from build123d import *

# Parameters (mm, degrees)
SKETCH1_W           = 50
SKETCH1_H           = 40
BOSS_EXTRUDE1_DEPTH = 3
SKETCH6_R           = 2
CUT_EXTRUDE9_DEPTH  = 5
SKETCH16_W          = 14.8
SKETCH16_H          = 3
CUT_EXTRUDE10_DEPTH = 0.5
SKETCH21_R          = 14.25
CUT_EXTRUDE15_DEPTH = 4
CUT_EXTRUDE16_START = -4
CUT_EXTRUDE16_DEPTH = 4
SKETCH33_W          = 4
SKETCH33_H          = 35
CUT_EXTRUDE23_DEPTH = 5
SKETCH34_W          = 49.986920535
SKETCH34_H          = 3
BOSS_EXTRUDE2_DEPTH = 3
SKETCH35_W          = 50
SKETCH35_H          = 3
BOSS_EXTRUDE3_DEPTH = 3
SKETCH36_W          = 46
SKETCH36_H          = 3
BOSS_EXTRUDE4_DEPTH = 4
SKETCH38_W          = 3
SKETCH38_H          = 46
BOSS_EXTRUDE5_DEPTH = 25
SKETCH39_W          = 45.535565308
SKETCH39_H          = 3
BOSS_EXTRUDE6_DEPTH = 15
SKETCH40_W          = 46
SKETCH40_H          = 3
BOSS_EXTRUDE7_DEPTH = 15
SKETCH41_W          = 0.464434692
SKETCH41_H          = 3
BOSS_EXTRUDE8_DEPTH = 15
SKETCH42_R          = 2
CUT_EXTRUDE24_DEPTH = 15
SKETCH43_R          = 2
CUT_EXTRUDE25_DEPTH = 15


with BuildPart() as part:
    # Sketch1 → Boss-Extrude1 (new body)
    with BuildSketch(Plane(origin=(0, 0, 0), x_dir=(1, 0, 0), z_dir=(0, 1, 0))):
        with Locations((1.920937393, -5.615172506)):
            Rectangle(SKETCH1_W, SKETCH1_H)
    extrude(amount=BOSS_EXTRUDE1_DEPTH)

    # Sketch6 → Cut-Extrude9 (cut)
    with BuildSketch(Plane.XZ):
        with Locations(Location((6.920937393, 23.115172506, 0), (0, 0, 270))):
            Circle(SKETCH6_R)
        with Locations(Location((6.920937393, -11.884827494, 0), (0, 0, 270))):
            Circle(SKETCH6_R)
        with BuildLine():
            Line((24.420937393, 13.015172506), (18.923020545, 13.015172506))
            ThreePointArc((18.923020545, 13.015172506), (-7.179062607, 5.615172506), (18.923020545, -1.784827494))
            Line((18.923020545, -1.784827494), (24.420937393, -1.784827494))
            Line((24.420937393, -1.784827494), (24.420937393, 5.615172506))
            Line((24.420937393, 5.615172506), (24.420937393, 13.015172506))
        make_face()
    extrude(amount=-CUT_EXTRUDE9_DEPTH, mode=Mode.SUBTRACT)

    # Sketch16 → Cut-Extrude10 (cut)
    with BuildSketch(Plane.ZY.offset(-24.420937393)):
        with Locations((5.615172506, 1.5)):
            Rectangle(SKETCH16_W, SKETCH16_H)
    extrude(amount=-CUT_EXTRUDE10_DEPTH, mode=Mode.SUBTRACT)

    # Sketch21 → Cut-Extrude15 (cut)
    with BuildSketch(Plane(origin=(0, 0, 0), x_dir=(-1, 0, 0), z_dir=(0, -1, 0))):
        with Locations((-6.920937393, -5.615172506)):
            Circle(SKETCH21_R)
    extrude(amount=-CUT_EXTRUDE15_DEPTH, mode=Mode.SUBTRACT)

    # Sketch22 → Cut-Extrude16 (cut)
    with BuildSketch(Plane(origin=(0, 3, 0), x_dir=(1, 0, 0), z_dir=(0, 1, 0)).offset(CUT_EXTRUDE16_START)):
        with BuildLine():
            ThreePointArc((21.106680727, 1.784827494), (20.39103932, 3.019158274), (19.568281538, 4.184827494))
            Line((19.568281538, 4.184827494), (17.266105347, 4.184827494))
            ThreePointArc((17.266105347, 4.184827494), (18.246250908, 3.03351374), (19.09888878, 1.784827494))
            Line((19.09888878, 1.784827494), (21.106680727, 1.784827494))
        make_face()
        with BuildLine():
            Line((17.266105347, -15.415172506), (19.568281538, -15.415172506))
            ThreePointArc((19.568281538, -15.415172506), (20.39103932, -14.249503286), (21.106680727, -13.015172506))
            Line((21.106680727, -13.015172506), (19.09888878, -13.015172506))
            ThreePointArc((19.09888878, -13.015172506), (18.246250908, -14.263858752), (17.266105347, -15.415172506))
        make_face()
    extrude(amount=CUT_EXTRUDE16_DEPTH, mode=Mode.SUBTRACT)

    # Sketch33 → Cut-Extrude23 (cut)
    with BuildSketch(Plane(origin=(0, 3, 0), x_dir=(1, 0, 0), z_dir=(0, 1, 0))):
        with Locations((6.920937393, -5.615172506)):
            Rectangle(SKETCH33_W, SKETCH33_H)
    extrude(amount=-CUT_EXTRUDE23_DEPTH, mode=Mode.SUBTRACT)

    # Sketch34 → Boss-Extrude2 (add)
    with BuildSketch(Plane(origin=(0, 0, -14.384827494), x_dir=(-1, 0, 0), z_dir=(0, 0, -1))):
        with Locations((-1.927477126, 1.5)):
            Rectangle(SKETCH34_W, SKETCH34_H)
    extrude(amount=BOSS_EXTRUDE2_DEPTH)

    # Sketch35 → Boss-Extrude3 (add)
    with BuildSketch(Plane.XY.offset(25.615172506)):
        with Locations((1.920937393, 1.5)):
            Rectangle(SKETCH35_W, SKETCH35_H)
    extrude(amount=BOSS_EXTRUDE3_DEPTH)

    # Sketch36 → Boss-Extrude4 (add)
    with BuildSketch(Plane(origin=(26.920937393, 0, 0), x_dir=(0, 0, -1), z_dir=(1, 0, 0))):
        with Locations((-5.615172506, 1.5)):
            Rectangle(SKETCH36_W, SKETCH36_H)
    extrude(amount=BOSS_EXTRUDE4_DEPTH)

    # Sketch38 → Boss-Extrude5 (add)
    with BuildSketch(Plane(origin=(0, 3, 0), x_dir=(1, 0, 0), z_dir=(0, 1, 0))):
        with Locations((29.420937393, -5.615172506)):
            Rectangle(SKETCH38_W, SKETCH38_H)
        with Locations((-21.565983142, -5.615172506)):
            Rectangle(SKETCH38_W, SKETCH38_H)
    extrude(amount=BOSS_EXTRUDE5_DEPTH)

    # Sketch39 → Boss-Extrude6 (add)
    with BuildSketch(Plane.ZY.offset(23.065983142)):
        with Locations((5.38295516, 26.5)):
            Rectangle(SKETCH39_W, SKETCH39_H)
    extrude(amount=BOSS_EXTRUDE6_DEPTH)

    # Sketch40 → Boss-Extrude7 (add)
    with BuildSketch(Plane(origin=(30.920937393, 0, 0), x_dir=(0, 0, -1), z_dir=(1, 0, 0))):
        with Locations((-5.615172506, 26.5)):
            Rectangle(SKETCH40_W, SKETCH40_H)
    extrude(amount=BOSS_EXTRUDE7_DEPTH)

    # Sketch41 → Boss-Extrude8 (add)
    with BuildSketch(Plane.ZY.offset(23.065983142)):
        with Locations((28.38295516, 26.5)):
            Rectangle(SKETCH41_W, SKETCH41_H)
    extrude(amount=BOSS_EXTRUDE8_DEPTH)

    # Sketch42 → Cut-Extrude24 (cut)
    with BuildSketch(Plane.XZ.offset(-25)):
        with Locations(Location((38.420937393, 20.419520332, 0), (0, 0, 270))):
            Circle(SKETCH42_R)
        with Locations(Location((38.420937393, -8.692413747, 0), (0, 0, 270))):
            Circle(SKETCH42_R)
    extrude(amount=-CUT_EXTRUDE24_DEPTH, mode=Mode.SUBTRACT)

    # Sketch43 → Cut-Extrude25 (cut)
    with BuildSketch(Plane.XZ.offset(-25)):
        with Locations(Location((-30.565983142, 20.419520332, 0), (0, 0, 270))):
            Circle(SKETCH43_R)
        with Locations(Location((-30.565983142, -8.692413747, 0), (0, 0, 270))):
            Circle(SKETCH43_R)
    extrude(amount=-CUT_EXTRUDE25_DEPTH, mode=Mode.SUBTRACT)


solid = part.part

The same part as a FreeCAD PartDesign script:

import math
import FreeCAD as App
import Part
import Sketcher


def add_polygon(sketch, points):
    """Adds a closed chain of lines whose ends are joined by coincident constraints."""
    first, n = sketch.GeometryCount, len(points)
    for a, b in zip(points, points[1:] + points[:1]):
        sketch.addGeometry(Part.LineSegment(App.Vector(*a, 0), App.Vector(*b, 0)), False)
    for i in range(n):
        sketch.addConstraint(Sketcher.Constraint("Coincident", first + i, 2, first + (i + 1) % n, 1))

doc = App.newDocument("Part")
body = doc.addObject("PartDesign::Body", "Body")

# Sketch on XZ plane
sketch1 = body.newObject("Sketcher::SketchObject", "Sketch")
sketch1.AttachmentSupport = (doc.getObject("XZ_Plane"), [""])
sketch1.MapMode = "FlatFace"
add_polygon(sketch1, [(-23, -14), (-23, 26), (27, 26), (27, -14)])  # lines 0-3
sketch1.addConstraint(Sketcher.Constraint("Vertical", 0))
sketch1.addConstraint(Sketcher.Constraint("Horizontal", 1))
sketch1.addConstraint(Sketcher.Constraint("Vertical", 2))
sketch1.addConstraint(Sketcher.Constraint("Horizontal", 3))
sketch1.addConstraint(Sketcher.Constraint("DistanceX", 1, 1, 1, 2, 50.0))
sketch1.addConstraint(Sketcher.Constraint("DistanceY", 0, 1, 0, 2, 40.0))
sketch1.addConstraint(Sketcher.Constraint("DistanceX", 0, 2, -1, 1, 23.079063))
sketch1.addConstraint(Sketcher.Constraint("DistanceY", -1, 1, 0, 2, 25.615173))
pad1 = body.newObject("PartDesign::Pad", "Pad")
pad1.Profile = sketch1
pad1.Length = 3
pad1.Reversed = True

# Sketch on XZ plane
sketch2 = body.newObject("Sketcher::SketchObject", "Sketch001")
sketch2.AttachmentSupport = (doc.getObject("XZ_Plane"), [""])
sketch2.MapMode = "FlatFace"
sketch2.addGeometry(Part.Circle(App.Vector(6.9, 23.1, 0), App.Vector(0, 0, 1), 2), False)
sketch2.addGeometry(Part.Circle(App.Vector(6.9, -11.9, 0), App.Vector(0, 0, 1), 2), False)
sketch2.addGeometry(Part.LineSegment(App.Vector(24.4, 13, 0), App.Vector(18.9, 13, 0)), False)
sketch2.addGeometry(Part.ArcOfCircle(Part.Circle(App.Vector(6.9, 5.6, 0), App.Vector(0, 0, 1), 14.1), math.radians(32), math.radians(328)), False)
sketch2.addGeometry(Part.LineSegment(App.Vector(18.9, -1.8, 0), App.Vector(24.4, -1.8, 0)), False)
sketch2.addGeometry(Part.LineSegment(App.Vector(24.4, -1.8, 0), App.Vector(24.4, 13, 0)), False)
sketch2.addConstraint(Sketcher.Constraint("Coincident", 2, 2, 3, 1))
sketch2.addConstraint(Sketcher.Constraint("Coincident", 3, 2, 4, 1))
sketch2.addConstraint(Sketcher.Constraint("Coincident", 4, 2, 5, 1))
sketch2.addConstraint(Sketcher.Constraint("Coincident", 5, 2, 2, 1))
sketch2.addConstraint(Sketcher.Constraint("Horizontal", 2))
sketch2.addConstraint(Sketcher.Constraint("Horizontal", 4))
sketch2.addConstraint(Sketcher.Constraint("Vertical", 5))
sketch2.addConstraint(Sketcher.Constraint("Equal", 0, 1))
sketch2.addConstraint(Sketcher.Constraint("Vertical", 0, 3, 1, 3))
sketch2.addConstraint(Sketcher.Constraint("Vertical", 1, 3, 3, 3))
sketch2.addConstraint(Sketcher.Constraint("Vertical", 2, 2, 3, 2))
sketch2.addConstraint(Sketcher.Constraint("Diameter", 0, 4.0))
sketch2.addConstraint(Sketcher.Constraint("Radius", 3, 14.1))
sketch2.addConstraint(Sketcher.Constraint("DistanceY", 5, 1, 5, 2, 14.8))
sketch2.addConstraint(Sketcher.Constraint("DistanceY", 1, 3, 0, 3, 35.0))
sketch2.addConstraint(Sketcher.Constraint("DistanceY", 3, 3, 0, 3, 17.5))
sketch2.addConstraint(Sketcher.Constraint("DistanceX", 3, 3, 4, 2, 17.5))
sketch2.addConstraint(Sketcher.Constraint("DistanceX", -1, 1, 2, 2, 18.923021))
sketch2.addConstraint(Sketcher.Constraint("DistanceY", -1, 1, 0, 3, 23.115173))
pocket1 = body.newObject("PartDesign::Pocket", "Pocket")
pocket1.Profile = sketch2
pocket1.Length = 5

# Sketch on YZ plane
sketch3 = body.newObject("Sketcher::SketchObject", "Sketch002")
sketch3.AttachmentSupport = (doc.getObject("YZ_Plane"), [""])
sketch3.MapMode = "FlatFace"
sketch3.AttachmentOffset = App.Placement(App.Vector(0, 0, 24.420937), App.Rotation())
add_polygon(sketch3, [(3, -1.8), (0, -1.8), (0, 13), (3, 13)])  # lines 0-3
sketch3.addConstraint(Sketcher.Constraint("Horizontal", 0))
sketch3.addConstraint(Sketcher.Constraint("Vertical", 1))
sketch3.addConstraint(Sketcher.Constraint("Horizontal", 2))
sketch3.addConstraint(Sketcher.Constraint("Vertical", 3))
sketch3.addConstraint(Sketcher.Constraint("PointOnObject", 0, 2, -2))
sketch3.addConstraint(Sketcher.Constraint("DistanceX", 0, 2, 0, 1, 3.0))
sketch3.addConstraint(Sketcher.Constraint("DistanceY", 1, 1, 1, 2, 14.8))
sketch3.addConstraint(Sketcher.Constraint("DistanceY", 0, 2, -1, 1, 1.784827))
pocket2 = body.newObject("PartDesign::Pocket", "Pocket001")
pocket2.Profile = sketch3
pocket2.Length = 0.5
pocket2.Reversed = True

# Sketch on XZ plane
sketch4 = body.newObject("Sketcher::SketchObject", "Sketch003")
sketch4.AttachmentSupport = (doc.getObject("XZ_Plane"), [""])
sketch4.MapMode = "FlatFace"
sketch4.addGeometry(Part.Circle(App.Vector(7, 6, 0), App.Vector(0, 0, 1), 14), False)
sketch4.addConstraint(Sketcher.Constraint("Diameter", 0, 28.5))
sketch4.addConstraint(Sketcher.Constraint("DistanceX", -1, 1, 0, 3, 6.920937))
sketch4.addConstraint(Sketcher.Constraint("DistanceY", -1, 1, 0, 3, 5.615173))
pocket3 = body.newObject("PartDesign::Pocket", "Pocket002")
pocket3.Profile = sketch4
pocket3.Length = 4

# Sketch on XZ plane
sketch5 = body.newObject("Sketcher::SketchObject", "Sketch004")
sketch5.AttachmentSupport = (doc.getObject("XZ_Plane"), [""])
sketch5.MapMode = "FlatFace"
sketch5.AttachmentOffset = App.Placement(App.Vector(0, 0, 1), App.Rotation())
sketch5.addGeometry(Part.ArcOfCircle(Part.Circle(App.Vector(6.9, 5.6, 0), App.Vector(0, 0, 1), 16), math.radians(-37.77), math.radians(-27.55)), False)
sketch5.addGeometry(Part.LineSegment(App.Vector(19.6, -4.2, 0), App.Vector(17.3, -4.2, 0)), False)
sketch5.addGeometry(Part.ArcOfCircle(Part.Circle(App.Vector(6.9, 5.6, 0), App.Vector(0, 0, 1), 14.2), math.radians(-43.45), math.radians(-31.29)), False)
sketch5.addGeometry(Part.LineSegment(App.Vector(19.1, -1.8, 0), App.Vector(21.1, -1.8, 0)), False)
sketch5.addGeometry(Part.LineSegment(App.Vector(17.3, 15.4, 0), App.Vector(19.6, 15.4, 0)), False)
sketch5.addGeometry(Part.ArcOfCircle(Part.Circle(App.Vector(6.9, 5.6, 0), App.Vector(0, 0, 1), 16), math.radians(27.55), math.radians(37.77)), False)
sketch5.addGeometry(Part.LineSegment(App.Vector(21.1, 13, 0), App.Vector(19.1, 13, 0)), False)
sketch5.addGeometry(Part.ArcOfCircle(Part.Circle(App.Vector(6.9, 5.6, 0), App.Vector(0, 0, 1), 14.2), math.radians(31.29), math.radians(43.45)), False)
sketch5.addConstraint(Sketcher.Constraint("Coincident", 0, 1, 1, 1))
sketch5.addConstraint(Sketcher.Constraint("Coincident", 1, 2, 2, 1))
sketch5.addConstraint(Sketcher.Constraint("Coincident", 2, 2, 3, 1))
sketch5.addConstraint(Sketcher.Constraint("Coincident", 3, 2, 0, 2))
sketch5.addConstraint(Sketcher.Constraint("Coincident", 4, 2, 5, 2))
sketch5.addConstraint(Sketcher.Constraint("Coincident", 5, 1, 6, 1))
sketch5.addConstraint(Sketcher.Constraint("Coincident", 6, 2, 7, 1))
sketch5.addConstraint(Sketcher.Constraint("Coincident", 7, 2, 4, 1))
sketch5.addConstraint(Sketcher.Constraint("Horizontal", 1))
sketch5.addConstraint(Sketcher.Constraint("Horizontal", 3))
sketch5.addConstraint(Sketcher.Constraint("Horizontal", 4))
sketch5.addConstraint(Sketcher.Constraint("Horizontal", 6))
sketch5.addConstraint(Sketcher.Constraint("Coincident", 2, 3, 0, 3))
sketch5.addConstraint(Sketcher.Constraint("Coincident", 5, 3, 0, 3))
sketch5.addConstraint(Sketcher.Constraint("Coincident", 7, 3, 0, 3))
sketch5.addConstraint(Sketcher.Constraint("Equal", 0, 5))
sketch5.addConstraint(Sketcher.Constraint("Equal", 2, 7))
sketch5.addConstraint(Sketcher.Constraint("Vertical", 0, 1, 4, 2))
sketch5.addConstraint(Sketcher.Constraint("Vertical", 3, 2, 5, 1))
sketch5.addConstraint(Sketcher.Constraint("Radius", 2, 14.25))
sketch5.addConstraint(Sketcher.Constraint("DistanceY", 0, 1, 0, 3, 9.8))
sketch5.addConstraint(Sketcher.Constraint("DistanceY", 0, 1, 2, 2, 2.4))
sketch5.addConstraint(Sketcher.Constraint("Radius", 0, 15.999853))
sketch5.addConstraint(Sketcher.Constraint("DistanceX", -1, 1, 0, 1, 19.568282))
sketch5.addConstraint(Sketcher.Constraint("DistanceY", -1, 1, 0, 3, 5.615172))
pocket4 = body.newObject("PartDesign::Pocket", "Pocket003")
pocket4.Profile = sketch5
pocket4.Length = 4

# Sketch on XZ plane
sketch6 = body.newObject("Sketcher::SketchObject", "Sketch005")
sketch6.AttachmentSupport = (doc.getObject("XZ_Plane"), [""])
sketch6.MapMode = "FlatFace"
sketch6.AttachmentOffset = App.Placement(App.Vector(0, 0, -3), App.Rotation())
add_polygon(sketch6, [(4.9, -11.9), (4.9, 23.1), (8.9, 23.1), (8.9, -11.9)])  # lines 0-3
sketch6.addConstraint(Sketcher.Constraint("Vertical", 0))
sketch6.addConstraint(Sketcher.Constraint("Horizontal", 1))
sketch6.addConstraint(Sketcher.Constraint("Vertical", 2))
sketch6.addConstraint(Sketcher.Constraint("Horizontal", 3))
sketch6.addConstraint(Sketcher.Constraint("DistanceX", 1, 1, 1, 2, 4.0))
sketch6.addConstraint(Sketcher.Constraint("DistanceY", 0, 1, 0, 2, 35.0))
sketch6.addConstraint(Sketcher.Constraint("DistanceX", -1, 1, 0, 2, 4.920937))
sketch6.addConstraint(Sketcher.Constraint("DistanceY", -1, 1, 0, 2, 23.115173))
pocket5 = body.newObject("PartDesign::Pocket", "Pocket004")
pocket5.Profile = sketch6
pocket5.Length = 5
pocket5.Reversed = True

# Sketch on XY plane
sketch7 = body.newObject("Sketcher::SketchObject", "Sketch006")
sketch7.AttachmentSupport = (doc.getObject("XY_Plane"), [""])
sketch7.MapMode = "FlatFace"
sketch7.AttachmentOffset = App.Placement(App.Vector(0, 0, -14.384827), App.Rotation())
add_polygon(sketch7, [(26.9, 3), (26.9, 0), (-23.1, 0), (-23.1, 3)])  # lines 0-3
sketch7.addConstraint(Sketcher.Constraint("Vertical", 0))
sketch7.addConstraint(Sketcher.Constraint("Horizontal", 1))
sketch7.addConstraint(Sketcher.Constraint("Vertical", 2))
sketch7.addConstraint(Sketcher.Constraint("Horizontal", 3))
sketch7.addConstraint(Sketcher.Constraint("PointOnObject", 0, 2, -1))
sketch7.addConstraint(Sketcher.Constraint("DistanceY", 0, 2, 0, 1, 3.0))
sketch7.addConstraint(Sketcher.Constraint("DistanceX", 1, 2, 1, 1, 49.986921))
sketch7.addConstraint(Sketcher.Constraint("DistanceX", -1, 1, 0, 2, 26.920937))
pad2 = body.newObject("PartDesign::Pad", "Pad001")
pad2.Profile = sketch7
pad2.Length = 3
pad2.Reversed = True

# Sketch on XY plane
sketch8 = body.newObject("Sketcher::SketchObject", "Sketch007")
sketch8.AttachmentSupport = (doc.getObject("XY_Plane"), [""])
sketch8.MapMode = "FlatFace"
sketch8.AttachmentOffset = App.Placement(App.Vector(0, 0, 25.615173), App.Rotation())
add_polygon(sketch8, [(-23.1, 3), (-23.1, 0), (26.9, 0), (26.9, 3)])  # lines 0-3
sketch8.addConstraint(Sketcher.Constraint("Vertical", 0))
sketch8.addConstraint(Sketcher.Constraint("Horizontal", 1))
sketch8.addConstraint(Sketcher.Constraint("Vertical", 2))
sketch8.addConstraint(Sketcher.Constraint("Horizontal", 3))
sketch8.addConstraint(Sketcher.Constraint("PointOnObject", 0, 2, -1))
sketch8.addConstraint(Sketcher.Constraint("DistanceX", 1, 1, 1, 2, 50.0))
sketch8.addConstraint(Sketcher.Constraint("DistanceY", 0, 2, 0, 1, 3.0))
sketch8.addConstraint(Sketcher.Constraint("DistanceX", 0, 2, -1, 1, 23.079063))
pad3 = body.newObject("PartDesign::Pad", "Pad002")
pad3.Profile = sketch8
pad3.Length = 3

# Sketch on YZ plane
sketch9 = body.newObject("Sketcher::SketchObject", "Sketch008")
sketch9.AttachmentSupport = (doc.getObject("YZ_Plane"), [""])
sketch9.MapMode = "FlatFace"
sketch9.AttachmentOffset = App.Placement(App.Vector(0, 0, 26.920937), App.Rotation())
add_polygon(sketch9, [(3, 28.6), (0, 28.6), (0, -17.4), (3, -17.4)])  # lines 0-3
sketch9.addConstraint(Sketcher.Constraint("Horizontal", 0))
sketch9.addConstraint(Sketcher.Constraint("Vertical", 1))
sketch9.addConstraint(Sketcher.Constraint("Horizontal", 2))
sketch9.addConstraint(Sketcher.Constraint("Vertical", 3))
sketch9.addConstraint(Sketcher.Constraint("PointOnObject", 0, 2, -2))
sketch9.addConstraint(Sketcher.Constraint("DistanceX", 0, 2, 0, 1, 3.0))
sketch9.addConstraint(Sketcher.Constraint("DistanceY", 1, 2, 1, 1, 46.0))
sketch9.addConstraint(Sketcher.Constraint("DistanceY", -1, 1, 0, 2, 28.615173))
pad4 = body.newObject("PartDesign::Pad", "Pad003")
pad4.Profile = sketch9
pad4.Length = 4

# Sketch on XZ plane
sketch10 = body.newObject("Sketcher::SketchObject", "Sketch009")
sketch10.AttachmentSupport = (doc.getObject("XZ_Plane"), [""])
sketch10.MapMode = "FlatFace"
sketch10.AttachmentOffset = App.Placement(App.Vector(0, 0, -3), App.Rotation())
add_polygon(sketch10, [(27.9, -17.4), (27.9, 28.6), (30.9, 28.6), (30.9, -17.4)])  # lines 0-3
add_polygon(sketch10, [(-23.1, -17.4), (-23.1, 28.6), (-20.1, 28.6), (-20.1, -17.4)])  # lines 4-7
sketch10.addConstraint(Sketcher.Constraint("Vertical", 0))
sketch10.addConstraint(Sketcher.Constraint("Horizontal", 1))
sketch10.addConstraint(Sketcher.Constraint("Vertical", 2))
sketch10.addConstraint(Sketcher.Constraint("Horizontal", 3))
sketch10.addConstraint(Sketcher.Constraint("Vertical", 4))
sketch10.addConstraint(Sketcher.Constraint("Horizontal", 5))
sketch10.addConstraint(Sketcher.Constraint("Vertical", 6))
sketch10.addConstraint(Sketcher.Constraint("Horizontal", 7))
sketch10.addConstraint(Sketcher.Constraint("Horizontal", 1, 2, 4, 2))
sketch10.addConstraint(Sketcher.Constraint("Horizontal", 3, 2, 6, 2))
sketch10.addConstraint(Sketcher.Constraint("Equal", 3, 5))
sketch10.addConstraint(Sketcher.Constraint("DistanceX", 1, 1, 1, 2, 3.0))
sketch10.addConstraint(Sketcher.Constraint("DistanceY", 0, 1, 0, 2, 46.0))
sketch10.addConstraint(Sketcher.Constraint("DistanceX", 4, 2, 0, 2, 50.986921))
sketch10.addConstraint(Sketcher.Constraint("DistanceX", -1, 1, 0, 2, 27.920937))
sketch10.addConstraint(Sketcher.Constraint("DistanceY", -1, 1, 0, 2, 28.615173))
pad5 = body.newObject("PartDesign::Pad", "Pad004")
pad5.Profile = sketch10
pad5.Length = 25
pad5.Reversed = True

# Sketch on YZ plane
sketch11 = body.newObject("Sketcher::SketchObject", "Sketch010")
sketch11.AttachmentSupport = (doc.getObject("YZ_Plane"), [""])
sketch11.MapMode = "FlatFace"
sketch11.AttachmentOffset = App.Placement(App.Vector(0, 0, -23.065983), App.Rotation())
add_polygon(sketch11, [(28, -17.4), (25, -17.4), (25, 28.2), (28, 28.2)])  # lines 0-3
sketch11.addConstraint(Sketcher.Constraint("Horizontal", 0))
sketch11.addConstraint(Sketcher.Constraint("Vertical", 1))
sketch11.addConstraint(Sketcher.Constraint("Horizontal", 2))
sketch11.addConstraint(Sketcher.Constraint("Vertical", 3))
sketch11.addConstraint(Sketcher.Constraint("DistanceX", 0, 2, 0, 1, 3.0))
sketch11.addConstraint(Sketcher.Constraint("DistanceX", -1, 1, 0, 2, 25.0))
sketch11.addConstraint(Sketcher.Constraint("DistanceY", 1, 1, 1, 2, 45.535565))
sketch11.addConstraint(Sketcher.Constraint("DistanceY", 0, 2, -1, 1, 17.384827))
pad6 = body.newObject("PartDesign::Pad", "Pad005")
pad6.Profile = sketch11
pad6.Length = 15
pad6.Reversed = True

# Sketch on YZ plane
sketch12 = body.newObject("Sketcher::SketchObject", "Sketch011")
sketch12.AttachmentSupport = (doc.getObject("YZ_Plane"), [""])
sketch12.MapMode = "FlatFace"
sketch12.AttachmentOffset = App.Placement(App.Vector(0, 0, 30.920937), App.Rotation())
add_polygon(sketch12, [(28, 28.6), (25, 28.6), (25, -17.4), (28, -17.4)])  # lines 0-3
sketch12.addConstraint(Sketcher.Constraint("Horizontal", 0))
sketch12.addConstraint(Sketcher.Constraint("Vertical", 1))
sketch12.addConstraint(Sketcher.Constraint("Horizontal", 2))
sketch12.addConstraint(Sketcher.Constraint("Vertical", 3))
sketch12.addConstraint(Sketcher.Constraint("DistanceX", 0, 2, 0, 1, 3.0))
sketch12.addConstraint(Sketcher.Constraint("DistanceY", 1, 2, 1, 1, 46.0))
sketch12.addConstraint(Sketcher.Constraint("DistanceX", -1, 1, 0, 2, 25.0))
sketch12.addConstraint(Sketcher.Constraint("DistanceY", -1, 1, 0, 2, 28.615173))
pad7 = body.newObject("PartDesign::Pad", "Pad006")
pad7.Profile = sketch12
pad7.Length = 15

# Sketch on YZ plane
sketch13 = body.newObject("Sketcher::SketchObject", "Sketch012")
sketch13.AttachmentSupport = (doc.getObject("YZ_Plane"), [""])
sketch13.MapMode = "FlatFace"
sketch13.AttachmentOffset = App.Placement(App.Vector(0, 0, -23.065983), App.Rotation())
add_polygon(sketch13, [(28, 28.15), (25, 28.15), (25, 28.62), (28, 28.62)])  # lines 0-3
sketch13.addConstraint(Sketcher.Constraint("Horizontal", 0))
sketch13.addConstraint(Sketcher.Constraint("Vertical", 1))
sketch13.addConstraint(Sketcher.Constraint("Horizontal", 2))
sketch13.addConstraint(Sketcher.Constraint("Vertical", 3))
sketch13.addConstraint(Sketcher.Constraint("DistanceX", 0, 2, 0, 1, 3.0))
sketch13.addConstraint(Sketcher.Constraint("DistanceX", -1, 1, 0, 2, 25.0))
sketch13.addConstraint(Sketcher.Constraint("DistanceY", 1, 1, 1, 2, 0.464435))
sketch13.addConstraint(Sketcher.Constraint("DistanceY", -1, 1, 0, 2, 28.150738))
pad8 = body.newObject("PartDesign::Pad", "Pad007")
pad8.Profile = sketch13
pad8.Length = 15
pad8.Reversed = True

# Sketch on XZ plane
sketch14 = body.newObject("Sketcher::SketchObject", "Sketch013")
sketch14.AttachmentSupport = (doc.getObject("XZ_Plane"), [""])
sketch14.MapMode = "FlatFace"
sketch14.AttachmentOffset = App.Placement(App.Vector(0, 0, -25), App.Rotation())
sketch14.addGeometry(Part.Circle(App.Vector(38.4, 20.4, 0), App.Vector(0, 0, 1), 2), False)
sketch14.addGeometry(Part.Circle(App.Vector(38.4, -8.7, 0), App.Vector(0, 0, 1), 2), False)
sketch14.addConstraint(Sketcher.Constraint("Equal", 0, 1))
sketch14.addConstraint(Sketcher.Constraint("Vertical", 0, 3, 1, 3))
sketch14.addConstraint(Sketcher.Constraint("Diameter", 0, 4.0))
sketch14.addConstraint(Sketcher.Constraint("DistanceY", -1, 1, 0, 3, 20.41952))
sketch14.addConstraint(Sketcher.Constraint("DistanceX", -1, 1, 0, 3, 38.420937))
sketch14.addConstraint(Sketcher.Constraint("DistanceY", 1, 3, -1, 1, 8.692414))
pocket6 = body.newObject("PartDesign::Pocket", "Pocket005")
pocket6.Profile = sketch14
pocket6.Length = 15

# Sketch on XZ plane
sketch15 = body.newObject("Sketcher::SketchObject", "Sketch014")
sketch15.AttachmentSupport = (doc.getObject("XZ_Plane"), [""])
sketch15.MapMode = "FlatFace"
sketch15.AttachmentOffset = App.Placement(App.Vector(0, 0, -25), App.Rotation())
sketch15.addGeometry(Part.Circle(App.Vector(-30.6, 20.4, 0), App.Vector(0, 0, 1), 2), False)
sketch15.addGeometry(Part.Circle(App.Vector(-30.6, -8.7, 0), App.Vector(0, 0, 1), 2), False)
sketch15.addConstraint(Sketcher.Constraint("Equal", 0, 1))
sketch15.addConstraint(Sketcher.Constraint("Vertical", 0, 3, 1, 3))
sketch15.addConstraint(Sketcher.Constraint("Diameter", 0, 4.0))
sketch15.addConstraint(Sketcher.Constraint("DistanceY", -1, 1, 0, 3, 20.41952))
sketch15.addConstraint(Sketcher.Constraint("DistanceX", 0, 3, -1, 1, 30.565983))
sketch15.addConstraint(Sketcher.Constraint("DistanceY", 1, 3, -1, 1, 8.692414))
pocket7 = body.newObject("PartDesign::Pocket", "Pocket006")
pocket7.Profile = sketch15
pocket7.Length = 15

doc.recompute()
